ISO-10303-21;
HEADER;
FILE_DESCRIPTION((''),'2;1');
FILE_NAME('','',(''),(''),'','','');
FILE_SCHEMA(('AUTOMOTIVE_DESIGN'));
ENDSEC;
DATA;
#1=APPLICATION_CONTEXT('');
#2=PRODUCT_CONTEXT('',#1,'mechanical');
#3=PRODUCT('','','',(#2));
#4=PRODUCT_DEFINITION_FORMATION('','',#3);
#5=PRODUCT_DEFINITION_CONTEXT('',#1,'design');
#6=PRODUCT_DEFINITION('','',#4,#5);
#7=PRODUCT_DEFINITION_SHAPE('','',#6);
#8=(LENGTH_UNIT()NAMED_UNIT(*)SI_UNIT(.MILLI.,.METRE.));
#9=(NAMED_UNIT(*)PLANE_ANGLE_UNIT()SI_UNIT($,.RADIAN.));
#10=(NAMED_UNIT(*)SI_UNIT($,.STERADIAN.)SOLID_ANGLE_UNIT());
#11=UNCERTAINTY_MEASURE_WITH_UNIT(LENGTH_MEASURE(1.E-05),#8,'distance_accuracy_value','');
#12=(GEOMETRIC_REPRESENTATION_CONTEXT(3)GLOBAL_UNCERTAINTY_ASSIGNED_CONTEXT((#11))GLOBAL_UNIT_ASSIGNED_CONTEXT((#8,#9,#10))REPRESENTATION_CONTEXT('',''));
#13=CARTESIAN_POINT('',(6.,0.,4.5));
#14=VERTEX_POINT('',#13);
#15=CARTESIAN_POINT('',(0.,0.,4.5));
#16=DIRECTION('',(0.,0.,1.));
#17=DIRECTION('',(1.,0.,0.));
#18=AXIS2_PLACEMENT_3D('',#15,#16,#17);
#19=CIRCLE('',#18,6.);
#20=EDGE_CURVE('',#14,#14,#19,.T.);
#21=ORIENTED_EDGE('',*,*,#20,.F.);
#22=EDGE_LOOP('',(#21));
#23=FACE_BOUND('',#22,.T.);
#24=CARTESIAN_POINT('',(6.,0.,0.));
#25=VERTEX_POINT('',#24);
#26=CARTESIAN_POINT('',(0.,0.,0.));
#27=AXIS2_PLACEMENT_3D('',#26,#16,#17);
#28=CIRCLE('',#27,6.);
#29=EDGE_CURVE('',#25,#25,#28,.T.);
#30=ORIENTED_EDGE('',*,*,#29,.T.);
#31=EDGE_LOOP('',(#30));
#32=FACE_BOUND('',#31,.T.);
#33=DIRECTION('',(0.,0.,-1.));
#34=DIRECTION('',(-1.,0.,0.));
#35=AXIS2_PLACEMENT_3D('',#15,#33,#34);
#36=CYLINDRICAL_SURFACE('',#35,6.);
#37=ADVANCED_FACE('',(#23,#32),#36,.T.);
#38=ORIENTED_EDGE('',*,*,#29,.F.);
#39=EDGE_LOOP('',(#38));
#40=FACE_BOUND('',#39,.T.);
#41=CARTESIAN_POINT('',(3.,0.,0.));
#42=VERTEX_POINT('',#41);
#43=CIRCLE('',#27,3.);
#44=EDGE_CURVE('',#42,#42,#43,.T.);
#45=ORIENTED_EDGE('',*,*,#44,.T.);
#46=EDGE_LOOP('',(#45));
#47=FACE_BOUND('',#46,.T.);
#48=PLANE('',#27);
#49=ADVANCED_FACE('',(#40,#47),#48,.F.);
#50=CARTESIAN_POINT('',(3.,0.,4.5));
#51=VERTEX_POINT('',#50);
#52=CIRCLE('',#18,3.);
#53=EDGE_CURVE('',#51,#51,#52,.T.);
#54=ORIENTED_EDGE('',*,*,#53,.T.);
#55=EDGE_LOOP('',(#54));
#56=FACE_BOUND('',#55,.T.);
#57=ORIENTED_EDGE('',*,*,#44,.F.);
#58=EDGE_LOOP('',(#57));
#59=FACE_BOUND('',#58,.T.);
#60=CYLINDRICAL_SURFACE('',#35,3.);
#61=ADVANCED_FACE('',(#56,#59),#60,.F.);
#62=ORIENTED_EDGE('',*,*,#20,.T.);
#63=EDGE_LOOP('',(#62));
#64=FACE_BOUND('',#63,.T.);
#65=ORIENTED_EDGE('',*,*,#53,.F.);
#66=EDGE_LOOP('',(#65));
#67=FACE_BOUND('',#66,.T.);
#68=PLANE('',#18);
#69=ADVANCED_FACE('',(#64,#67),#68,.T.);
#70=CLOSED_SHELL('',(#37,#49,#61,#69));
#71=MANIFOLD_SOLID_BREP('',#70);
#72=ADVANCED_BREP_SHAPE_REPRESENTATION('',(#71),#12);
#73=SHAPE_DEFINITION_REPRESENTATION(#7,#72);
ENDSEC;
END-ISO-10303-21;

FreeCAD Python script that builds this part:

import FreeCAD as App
import Part
import Sketcher

V = App.Vector

doc = App.newDocument("Part")
body = doc.addObject("PartDesign::Body", "Body")

sketch1 = body.newObject("Sketcher::SketchObject", "Sketch")
sketch1.AttachmentSupport = (doc.getObject("XY_Plane"), [""])
sketch1.MapMode = "FlatFace"
sketch1.addGeometry([
    Part.Circle(V(0, 0, 0), V(0, 0, 1), 6),
    Part.Circle(V(0, 0, 0), V(0, 0, 1), 3),
], False)
sketch1.addConstraint([
    Sketcher.Constraint("Coincident", 0, 3, -1, 1),
    Sketcher.Constraint("Coincident", 1, 3, -1, 1),
    Sketcher.Constraint("Diameter", 0, 12.0),
    Sketcher.Constraint("Diameter", 1, 6.0),
])
pad1 = body.newObject("PartDesign::Pad", "Pad")
pad1.Profile = sketch1
pad1.Length = 4.5

doc.recompute()
